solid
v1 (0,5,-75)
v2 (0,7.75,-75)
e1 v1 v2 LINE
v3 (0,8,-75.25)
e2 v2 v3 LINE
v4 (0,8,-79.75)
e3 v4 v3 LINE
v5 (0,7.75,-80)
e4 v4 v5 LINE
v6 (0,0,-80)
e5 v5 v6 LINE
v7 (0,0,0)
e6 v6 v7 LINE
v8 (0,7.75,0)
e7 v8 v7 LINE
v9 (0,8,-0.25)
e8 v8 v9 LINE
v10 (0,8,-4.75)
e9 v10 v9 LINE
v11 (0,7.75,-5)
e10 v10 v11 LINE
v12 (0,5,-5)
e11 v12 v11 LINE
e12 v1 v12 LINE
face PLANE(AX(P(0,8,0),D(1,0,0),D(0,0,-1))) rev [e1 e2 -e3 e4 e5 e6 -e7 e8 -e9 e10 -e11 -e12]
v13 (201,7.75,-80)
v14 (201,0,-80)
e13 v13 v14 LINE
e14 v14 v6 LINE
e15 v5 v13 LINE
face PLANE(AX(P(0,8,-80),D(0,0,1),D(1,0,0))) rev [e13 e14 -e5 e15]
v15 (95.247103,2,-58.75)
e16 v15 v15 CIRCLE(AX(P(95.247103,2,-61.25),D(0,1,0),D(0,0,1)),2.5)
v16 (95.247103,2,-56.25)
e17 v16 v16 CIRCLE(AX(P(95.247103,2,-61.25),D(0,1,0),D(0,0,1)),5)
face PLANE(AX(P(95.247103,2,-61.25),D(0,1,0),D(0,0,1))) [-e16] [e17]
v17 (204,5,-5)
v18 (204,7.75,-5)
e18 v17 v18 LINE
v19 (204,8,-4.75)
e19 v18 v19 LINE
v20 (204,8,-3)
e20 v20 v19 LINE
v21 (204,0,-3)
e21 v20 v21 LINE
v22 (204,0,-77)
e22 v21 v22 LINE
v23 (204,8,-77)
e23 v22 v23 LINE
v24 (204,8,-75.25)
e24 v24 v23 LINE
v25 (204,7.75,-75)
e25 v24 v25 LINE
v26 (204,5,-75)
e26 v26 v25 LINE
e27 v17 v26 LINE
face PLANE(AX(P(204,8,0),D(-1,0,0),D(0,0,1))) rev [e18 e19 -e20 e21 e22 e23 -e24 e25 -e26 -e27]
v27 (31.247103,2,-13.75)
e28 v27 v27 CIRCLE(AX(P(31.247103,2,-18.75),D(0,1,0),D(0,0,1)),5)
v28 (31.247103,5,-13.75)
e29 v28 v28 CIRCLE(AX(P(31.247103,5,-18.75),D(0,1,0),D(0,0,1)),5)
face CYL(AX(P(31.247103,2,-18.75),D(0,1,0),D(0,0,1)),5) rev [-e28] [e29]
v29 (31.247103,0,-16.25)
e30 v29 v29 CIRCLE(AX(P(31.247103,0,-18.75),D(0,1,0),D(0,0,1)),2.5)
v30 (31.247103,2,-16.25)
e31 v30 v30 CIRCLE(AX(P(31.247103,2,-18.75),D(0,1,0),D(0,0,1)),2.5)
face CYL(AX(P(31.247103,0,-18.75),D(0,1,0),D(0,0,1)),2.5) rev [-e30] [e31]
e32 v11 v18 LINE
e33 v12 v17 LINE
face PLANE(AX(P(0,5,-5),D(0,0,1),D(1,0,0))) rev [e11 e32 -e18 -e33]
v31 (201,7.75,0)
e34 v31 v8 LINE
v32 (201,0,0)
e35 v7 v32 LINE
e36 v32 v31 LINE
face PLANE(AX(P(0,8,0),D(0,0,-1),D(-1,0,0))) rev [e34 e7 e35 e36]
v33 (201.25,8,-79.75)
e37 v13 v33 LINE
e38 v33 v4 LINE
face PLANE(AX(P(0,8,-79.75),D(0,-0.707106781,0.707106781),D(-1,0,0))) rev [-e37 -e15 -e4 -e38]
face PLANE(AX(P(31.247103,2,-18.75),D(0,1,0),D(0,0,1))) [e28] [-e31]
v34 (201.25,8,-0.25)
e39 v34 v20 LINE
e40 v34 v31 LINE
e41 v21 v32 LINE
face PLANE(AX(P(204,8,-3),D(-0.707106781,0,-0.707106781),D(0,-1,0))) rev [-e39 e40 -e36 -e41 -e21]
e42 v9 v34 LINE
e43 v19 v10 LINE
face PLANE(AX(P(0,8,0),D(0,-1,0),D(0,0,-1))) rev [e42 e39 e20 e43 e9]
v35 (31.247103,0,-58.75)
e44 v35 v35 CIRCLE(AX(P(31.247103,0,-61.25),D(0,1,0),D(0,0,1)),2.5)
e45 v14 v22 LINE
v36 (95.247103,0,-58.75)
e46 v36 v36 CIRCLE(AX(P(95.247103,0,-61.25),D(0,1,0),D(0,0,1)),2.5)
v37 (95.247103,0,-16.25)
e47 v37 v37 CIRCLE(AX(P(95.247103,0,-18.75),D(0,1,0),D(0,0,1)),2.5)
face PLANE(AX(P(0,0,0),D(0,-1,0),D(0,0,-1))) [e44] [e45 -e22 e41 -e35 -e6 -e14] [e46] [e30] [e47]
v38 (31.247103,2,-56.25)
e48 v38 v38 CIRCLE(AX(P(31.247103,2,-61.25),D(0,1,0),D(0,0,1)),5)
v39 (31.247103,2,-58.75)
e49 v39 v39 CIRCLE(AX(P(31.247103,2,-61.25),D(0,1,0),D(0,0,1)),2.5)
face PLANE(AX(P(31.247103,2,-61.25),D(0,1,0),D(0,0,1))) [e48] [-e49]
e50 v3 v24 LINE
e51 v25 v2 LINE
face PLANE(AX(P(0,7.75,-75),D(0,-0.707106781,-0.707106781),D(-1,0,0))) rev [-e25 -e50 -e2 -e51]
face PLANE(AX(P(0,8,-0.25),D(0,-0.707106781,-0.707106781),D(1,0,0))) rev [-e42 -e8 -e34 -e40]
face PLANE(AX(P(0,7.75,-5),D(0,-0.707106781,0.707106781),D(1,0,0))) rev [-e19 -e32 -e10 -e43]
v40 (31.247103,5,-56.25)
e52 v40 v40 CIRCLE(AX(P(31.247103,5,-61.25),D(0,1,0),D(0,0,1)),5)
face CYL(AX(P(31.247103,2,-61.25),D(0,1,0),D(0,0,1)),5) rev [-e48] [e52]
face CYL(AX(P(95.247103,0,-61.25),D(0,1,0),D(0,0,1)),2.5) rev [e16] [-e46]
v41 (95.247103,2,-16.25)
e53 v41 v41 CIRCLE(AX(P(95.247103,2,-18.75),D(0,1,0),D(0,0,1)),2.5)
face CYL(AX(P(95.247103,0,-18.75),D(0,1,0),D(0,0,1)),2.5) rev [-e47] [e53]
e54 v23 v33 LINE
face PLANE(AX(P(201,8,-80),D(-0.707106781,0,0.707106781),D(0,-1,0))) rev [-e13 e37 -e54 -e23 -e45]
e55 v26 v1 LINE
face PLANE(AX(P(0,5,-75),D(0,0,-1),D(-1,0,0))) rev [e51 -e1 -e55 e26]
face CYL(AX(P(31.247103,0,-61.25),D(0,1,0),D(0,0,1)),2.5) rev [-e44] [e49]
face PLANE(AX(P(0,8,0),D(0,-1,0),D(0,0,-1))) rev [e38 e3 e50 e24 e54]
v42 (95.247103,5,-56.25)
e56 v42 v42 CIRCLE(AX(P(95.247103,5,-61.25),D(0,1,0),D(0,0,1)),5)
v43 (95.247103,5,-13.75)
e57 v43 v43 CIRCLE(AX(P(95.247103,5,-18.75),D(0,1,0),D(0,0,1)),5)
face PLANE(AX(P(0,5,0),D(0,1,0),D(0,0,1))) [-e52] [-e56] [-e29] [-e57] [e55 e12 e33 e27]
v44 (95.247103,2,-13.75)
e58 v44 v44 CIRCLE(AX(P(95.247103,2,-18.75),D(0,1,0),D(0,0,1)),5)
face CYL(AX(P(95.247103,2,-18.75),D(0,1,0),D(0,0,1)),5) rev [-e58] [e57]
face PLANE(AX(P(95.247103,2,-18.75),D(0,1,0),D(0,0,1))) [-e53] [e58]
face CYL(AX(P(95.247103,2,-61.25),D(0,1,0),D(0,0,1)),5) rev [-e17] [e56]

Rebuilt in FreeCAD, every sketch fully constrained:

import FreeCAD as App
import Part
import Sketcher

V = App.Vector
Q = App.Units.Quantity


def edges_at(feature, points):
    """Names of the edges that pass closest to the given points."""
    edges = feature.Shape.Edges
    near = lambda p: min(range(len(edges)), key=lambda i: edges[i].distToShape(Part.Vertex(*p))[0])
    return sorted({f"Edge{near(p) + 1}" for p in points})

doc = App.newDocument("Part")
params = doc.addObject("Spreadsheet::Sheet", "Params")
for row, (alias, value) in enumerate([
    ("sketch1_width", "204 mm"),
    ("sketch1_height", "80 mm"),
    ("pad1_length", "8 mm"),
    ("sketch2_width", "204 mm"),
    ("sketch2_height", "70 mm"),
    ("pocket1_length", "3 mm"),
    ("sketch3_diameter", "10 mm"),
    ("pocket2_length", "3 mm"),
    ("sketch4_diameter", "5 mm"),
    ("chamfer_size", "3 mm"),
    ("chamfer2_size", "0.25 mm"),
], start=1):
    params.set(f"A{row}", alias)
    params.set(f"B{row}", "=" + value)
    params.setAlias(f"B{row}", alias)

body = doc.addObject("PartDesign::Body", "Body")

sketch1 = body.newObject("Sketcher::SketchObject", "Sketch")
sketch1.AttachmentSupport = (doc.getObject("XZ_Plane"), [""])
sketch1.MapMode = "FlatFace"
sketch1.addGeometry([
    Part.LineSegment(V(0, -80, 0), V(0, 0, 0)),
    Part.LineSegment(V(0, 0, 0), V(204, 0, 0)),
    Part.LineSegment(V(204, 0, 0), V(204, -80, 0)),
    Part.LineSegment(V(204, -80, 0), V(0, -80, 0)),
], False)
sketch1.addConstraint([
    Sketcher.Constraint("Coincident", 0, 2, 1, 1),
    Sketcher.Constraint("Coincident", 1, 2, 2, 1),
    Sketcher.Constraint("Coincident", 2, 2, 3, 1),
    Sketcher.Constraint("Coincident", 3, 2, 0, 1),
    Sketcher.Constraint("Vertical", 0),
    Sketcher.Constraint("Horizontal", 1),
    Sketcher.Constraint("Vertical", 2),
    Sketcher.Constraint("Horizontal", 3),
    Sketcher.Constraint("Coincident", 0, 2, -1, 1),
    Sketcher.Constraint("DistanceX", 1, 1, 1, 2, Q("204 mm")),
    Sketcher.Constraint("DistanceY", 0, 1, 0, 2, Q("80 mm")),
])
sketch1.setExpression("Constraints[9]", "Params.sketch1_width")
sketch1.setExpression("Constraints[10]", "Params.sketch1_height")
pad1 = body.newObject("PartDesign::Pad", "Pad")
pad1.Profile = sketch1
pad1.setExpression("Length", "Params.pad1_length")
pad1.Reversed = True

sketch2 = body.newObject("Sketcher::SketchObject", "Sketch001")
sketch2.AttachmentSupport = (doc.getObject("XZ_Plane"), [""])
sketch2.MapMode = "FlatFace"
sketch2.AttachmentOffset = App.Placement(V(0, 0, -8), App.Rotation())
sketch2.addGeometry([
    Part.LineSegment(V(0, -75, 0), V(0, -5, 0)),
    Part.LineSegment(V(0, -5, 0), V(204, -5, 0)),
    Part.LineSegment(V(204, -5, 0), V(204, -75, 0)),
    Part.LineSegment(V(204, -75, 0), V(0, -75, 0)),
], False)
sketch2.addConstraint([
    Sketcher.Constraint("Coincident", 0, 2, 1, 1),
    Sketcher.Constraint("Coincident", 1, 2, 2, 1),
    Sketcher.Constraint("Coincident", 2, 2, 3, 1),
    Sketcher.Constraint("Coincident", 3, 2, 0, 1),
    Sketcher.Constraint("Vertical", 0),
    Sketcher.Constraint("Horizontal", 1),
    Sketcher.Constraint("Vertical", 2),
    Sketcher.Constraint("Horizontal", 3),
    Sketcher.Constraint("PointOnObject", 0, 2, -2),
    Sketcher.Constraint("DistanceX", 1, 1, 1, 2, Q("204 mm")),
    Sketcher.Constraint("DistanceY", 0, 1, 0, 2, Q("70 mm")),
    Sketcher.Constraint("DistanceY", 0, 2, -1, 1, Q("5 mm")),
])
sketch2.setExpression("Constraints[9]", "Params.sketch2_width")
sketch2.setExpression("Constraints[10]", "Params.sketch2_height")
pocket1 = body.newObject("PartDesign::Pocket", "Pocket")
pocket1.Profile = sketch2
pocket1.setExpression("Length", "Params.pocket1_length")
pocket1.Reversed = True

sketch3 = body.newObject("Sketcher::SketchObject", "Sketch002")
sketch3.AttachmentSupport = (doc.getObject("XZ_Plane"), [""])
sketch3.MapMode = "FlatFace"
sketch3.AttachmentOffset = App.Placement(V(0, 0, -5), App.Rotation())
sketch3.addGeometry([
    Part.Circle(V(31, -61, 0), V(0, 0, 1), 5),
    Part.Circle(V(95, -61, 0), V(0, 0, 1), 5),
    Part.Circle(V(31, -19, 0), V(0, 0, 1), 5),
    Part.Circle(V(95, -19, 0), V(0, 0, 1), 5),
], False)
sketch3.addConstraint([
    Sketcher.Constraint("Equal", 0, 1),
    Sketcher.Constraint("Equal", 1, 2),
    Sketcher.Constraint("Equal", 2, 3),
    Sketcher.Constraint("Horizontal", 0, 3, 1, 3),
    Sketcher.Constraint("Horizontal", 2, 3, 3, 3),
    Sketcher.Constraint("Vertical", 0, 3, 2, 3),
    Sketcher.Constraint("Vertical", 1, 3, 3, 3),
    Sketcher.Constraint("Diameter", 0, Q("10 mm")),
    Sketcher.Constraint("DistanceX", 0, 3, 1, 3, Q("64 mm")),
    Sketcher.Constraint("DistanceY", 0, 3, 2, 3, Q("42.5 mm")),
    Sketcher.Constraint("DistanceY", 0, 3, -1, 1, Q("61.25 mm")),
    Sketcher.Constraint("DistanceX", -1, 1, 0, 3, Q("31.247103 mm")),
])
sketch3.setExpression("Constraints[7]", "Params.sketch3_diameter")
pocket2 = body.newObject("PartDesign::Pocket", "Pocket001")
pocket2.Profile = sketch3
pocket2.setExpression("Length", "Params.pocket2_length")
pocket2.Reversed = True

sketch4 = body.newObject("Sketcher::SketchObject", "Sketch003")
sketch4.AttachmentSupport = (doc.getObject("XZ_Plane"), [""])
sketch4.MapMode = "FlatFace"
sketch4.AttachmentOffset = App.Placement(V(0, 0, -2), App.Rotation())
sketch4.addGeometry([
    Part.Circle(V(31.2, -61.2, 0), V(0, 0, 1), 2.5),
    Part.Circle(V(95.2, -61.2, 0), V(0, 0, 1), 2.5),
    Part.Circle(V(95.2, -18.8, 0), V(0, 0, 1), 2.5),
    Part.Circle(V(31.2, -18.8, 0), V(0, 0, 1), 2.5),
], False)
sketch4.addConstraint([
    Sketcher.Constraint("Equal", 0, 1),
    Sketcher.Constraint("Equal", 1, 2),
    Sketcher.Constraint("Equal", 2, 3),
    Sketcher.Constraint("Horizontal", 0, 3, 1, 3),
    Sketcher.Constraint("Horizontal", 2, 3, 3, 3),
    Sketcher.Constraint("Vertical", 1, 3, 2, 3),
    Sketcher.Constraint("Vertical", 0, 3, 3, 3),
    Sketcher.Constraint("Diameter", 0, Q("5 mm")),
    Sketcher.Constraint("DistanceX", 0, 3, 1, 3, Q("64 mm")),
    Sketcher.Constraint("DistanceY", 1, 3, 2, 3, Q("42.5 mm")),
    Sketcher.Constraint("DistanceY", 0, 3, -1, 1, Q("61.25 mm")),
    Sketcher.Constraint("DistanceX", -1, 1, 0, 3, Q("31.247103 mm")),
])
sketch4.setExpression("Constraints[7]", "Params.sketch4_diameter")
pocket3 = body.newObject("PartDesign::Pocket", "Pocket002")
pocket3.Profile = sketch4
pocket3.Type = "ThroughAll"
pocket3.Reversed = True
doc.recompute()

chamfer = body.newObject("PartDesign::Chamfer", "Chamfer")
chamfer.Base = (pocket3, edges_at(pocket3, [(204, 4, -80), (204, 4, 0)]))
chamfer.setExpression("Size", "Params.chamfer_size")
doc.recompute()

chamfer2 = body.newObject("PartDesign::Chamfer", "Chamfer001")
chamfer2.Base = (chamfer, edges_at(chamfer, [
    (102, 8, -5),
    (102, 8, -75),
    (100.5, 8, -80),
    (100.5, 8, 0),
]))
chamfer2.setExpression("Size", "Params.chamfer2_size")

doc.recompute()
